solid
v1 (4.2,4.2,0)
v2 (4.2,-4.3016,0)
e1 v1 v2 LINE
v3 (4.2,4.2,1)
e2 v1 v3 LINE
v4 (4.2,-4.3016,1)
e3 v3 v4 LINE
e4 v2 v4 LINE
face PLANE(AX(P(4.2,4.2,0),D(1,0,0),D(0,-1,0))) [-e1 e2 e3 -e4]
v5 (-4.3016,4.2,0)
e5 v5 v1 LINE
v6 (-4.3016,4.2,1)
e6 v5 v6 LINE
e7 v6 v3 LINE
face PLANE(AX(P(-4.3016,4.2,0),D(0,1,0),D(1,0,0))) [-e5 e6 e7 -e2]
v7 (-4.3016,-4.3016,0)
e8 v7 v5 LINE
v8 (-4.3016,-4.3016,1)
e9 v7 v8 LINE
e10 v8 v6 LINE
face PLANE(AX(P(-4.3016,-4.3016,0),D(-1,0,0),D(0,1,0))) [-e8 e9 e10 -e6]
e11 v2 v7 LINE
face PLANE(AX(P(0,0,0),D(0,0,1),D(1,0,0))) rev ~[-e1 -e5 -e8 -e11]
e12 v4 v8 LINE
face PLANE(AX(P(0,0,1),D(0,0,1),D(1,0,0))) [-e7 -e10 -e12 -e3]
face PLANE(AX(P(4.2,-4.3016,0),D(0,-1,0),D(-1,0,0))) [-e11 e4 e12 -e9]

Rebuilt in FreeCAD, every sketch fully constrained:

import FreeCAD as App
import Part
import Sketcher

V = App.Vector


def add_polygon(sketch, points):
    """Adds a closed chain of lines whose ends are joined by coincident constraints."""
    first, n = sketch.GeometryCount, len(points)
    for a, b in zip(points, points[1:] + points[:1]):
        sketch.addGeometry(Part.LineSegment(App.Vector(*a, 0), App.Vector(*b, 0)), False)
    for i in range(n):
        sketch.addConstraint(Sketcher.Constraint("Coincident", first + i, 2, first + (i + 1) % n, 1))

doc = App.newDocument("Part")
body = doc.addObject("PartDesign::Body", "Body")

sketch1 = body.newObject("Sketcher::SketchObject", "Sketch")
sketch1.AttachmentSupport = (doc.getObject("XY_Plane"), [""])
sketch1.MapMode = "FlatFace"
add_polygon(sketch1, [(4, 4), (-4, 4), (-4, -4), (4, -4)])
sketch1.addConstraint([
    Sketcher.Constraint("Horizontal", 0),
    Sketcher.Constraint("Vertical", 1),
    Sketcher.Constraint("Horizontal", 2),
    Sketcher.Constraint("Vertical", 3),
    Sketcher.Constraint("Equal", 2, 1),
    Sketcher.Constraint("DistanceY", -1, 1, 0, 2, 4.2),
    Sketcher.Constraint("DistanceX", -1, 1, 2, 2, 4.2),
    Sketcher.Constraint("DistanceX", 0, 2, 0, 1, 8.5016),
])
pad1 = body.newObject("PartDesign::Pad", "Pad")
pad1.Profile = sketch1
pad1.Length = 1

doc.recompute()
